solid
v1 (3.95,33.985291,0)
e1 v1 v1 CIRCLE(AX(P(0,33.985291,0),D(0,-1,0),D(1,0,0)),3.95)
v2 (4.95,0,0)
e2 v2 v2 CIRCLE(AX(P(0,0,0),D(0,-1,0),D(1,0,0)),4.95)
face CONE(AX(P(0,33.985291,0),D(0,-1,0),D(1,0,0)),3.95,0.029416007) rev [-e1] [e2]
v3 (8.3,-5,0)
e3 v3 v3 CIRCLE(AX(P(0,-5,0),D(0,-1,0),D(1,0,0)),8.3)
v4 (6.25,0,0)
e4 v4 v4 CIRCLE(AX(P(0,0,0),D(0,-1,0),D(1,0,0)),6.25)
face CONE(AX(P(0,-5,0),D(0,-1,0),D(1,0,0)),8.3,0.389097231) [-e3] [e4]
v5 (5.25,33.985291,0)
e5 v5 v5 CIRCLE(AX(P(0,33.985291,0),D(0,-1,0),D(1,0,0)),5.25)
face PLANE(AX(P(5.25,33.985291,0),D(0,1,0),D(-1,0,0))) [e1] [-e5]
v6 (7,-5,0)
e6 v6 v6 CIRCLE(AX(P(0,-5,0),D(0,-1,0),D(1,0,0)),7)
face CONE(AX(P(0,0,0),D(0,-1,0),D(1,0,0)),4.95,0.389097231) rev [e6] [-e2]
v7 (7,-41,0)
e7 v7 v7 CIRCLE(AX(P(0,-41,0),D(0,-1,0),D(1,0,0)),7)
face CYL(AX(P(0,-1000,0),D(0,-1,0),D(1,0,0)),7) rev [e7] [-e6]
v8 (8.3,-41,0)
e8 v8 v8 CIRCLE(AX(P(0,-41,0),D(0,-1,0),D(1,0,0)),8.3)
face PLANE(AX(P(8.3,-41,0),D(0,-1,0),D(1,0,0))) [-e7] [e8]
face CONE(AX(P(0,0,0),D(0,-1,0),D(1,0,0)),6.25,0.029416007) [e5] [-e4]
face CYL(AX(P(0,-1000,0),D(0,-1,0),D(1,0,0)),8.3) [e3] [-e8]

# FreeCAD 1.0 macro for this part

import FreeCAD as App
import Part
import Sketcher

V = App.Vector

doc = App.newDocument("Part")
params = doc.addObject("Spreadsheet::Sheet", "Params")
for row, (alias, value) in enumerate([
    ("sketch1_height", "36 mm"),
    ("sketch1_length", "34 mm"),
    ("sketch1_width", "1.3 mm"),
    ("revolution_angle", "360 deg"),
], start=1):
    params.set(f"A{row}", alias)
    params.set(f"B{row}", "=" + value)
    params.setAlias(f"B{row}", alias)

body = doc.addObject("PartDesign::Body", "Body")

# Sketch on XY plane
sketch1 = body.newObject("Sketcher::SketchObject", "Sketch")
sketch1.AttachmentSupport = (doc.getObject("XY_Plane"), [""])
sketch1.MapMode = "FlatFace"
sketch1.addGeometry([
    Part.LineSegment(V(6.2, 0, 0), V(5.2, 34, 0)),  # 0
    Part.LineSegment(V(5.2, 34, 0), V(4, 34, 0)),  # 1
    Part.LineSegment(V(4, 34, 0), V(5, 0, 0)),  # 2
    Part.LineSegment(V(5, 0, 0), V(7, -5, 0)),  # 3
    Part.LineSegment(V(7, -5, 0), V(7, -41, 0)),  # 4
    Part.LineSegment(V(7, -41, 0), V(8.3, -41, 0)),  # 5
    Part.LineSegment(V(8.3, -41, 0), V(8.3, -5, 0)),  # 6
    Part.LineSegment(V(8.3, -5, 0), V(6.2, 0, 0)),  # 7
], False)
sketch1.addConstraint([
    Sketcher.Constraint("Coincident", 0, 2, 1, 1),
    Sketcher.Constraint("Coincident", 1, 2, 2, 1),
    Sketcher.Constraint("Coincident", 2, 2, 3, 1),
    Sketcher.Constraint("Coincident", 3, 2, 4, 1),
    Sketcher.Constraint("Coincident", 4, 2, 5, 1),
    Sketcher.Constraint("Coincident", 5, 2, 6, 1),
    Sketcher.Constraint("Coincident", 6, 2, 7, 1),
    Sketcher.Constraint("Coincident", 7, 2, 0, 1),
    Sketcher.Constraint("Horizontal", 1),
    Sketcher.Constraint("Vertical", 4),
    Sketcher.Constraint("Horizontal", 5),
    Sketcher.Constraint("Vertical", 6),
    Sketcher.Constraint("PointOnObject", 2, 2, -1),
    Sketcher.Constraint("PointOnObject", 7, 2, -1),
    Sketcher.Constraint("Parallel", 0, 2),
    Sketcher.Constraint("Parallel", 3, 7),
    Sketcher.Constraint("Horizontal", 3, 2, 6, 2),
    Sketcher.Constraint("DistanceY", 4, 2, 4, 1, 36.0),
    Sketcher.Constraint("Distance", 0, 34.0),
    Sketcher.Constraint("DistanceX", 1, 2, 1, 1, 1.3),
    Sketcher.Constraint("DistanceX", -1, 1, 3, 2, 7.0),
    Sketcher.Constraint("DistanceY", 3, 2, -1, 1, 5.0),
    Sketcher.Constraint("DistanceX", 1, 2, 2, 2, 1.0),
    Sketcher.Constraint("DistanceX", -1, 1, 0, 2, 5.25),
])
sketch1.setExpression("Constraints[17]", "Params.sketch1_height")
sketch1.setExpression("Constraints[18]", "Params.sketch1_length")
sketch1.setExpression("Constraints[19]", "Params.sketch1_width")
revolution = body.newObject("PartDesign::Revolution", "Revolution")
revolution.Profile = sketch1
revolution.ReferenceAxis = (sketch1, ["V_Axis"])
revolution.setExpression("Angle", "Params.revolution_angle")

doc.recompute()
